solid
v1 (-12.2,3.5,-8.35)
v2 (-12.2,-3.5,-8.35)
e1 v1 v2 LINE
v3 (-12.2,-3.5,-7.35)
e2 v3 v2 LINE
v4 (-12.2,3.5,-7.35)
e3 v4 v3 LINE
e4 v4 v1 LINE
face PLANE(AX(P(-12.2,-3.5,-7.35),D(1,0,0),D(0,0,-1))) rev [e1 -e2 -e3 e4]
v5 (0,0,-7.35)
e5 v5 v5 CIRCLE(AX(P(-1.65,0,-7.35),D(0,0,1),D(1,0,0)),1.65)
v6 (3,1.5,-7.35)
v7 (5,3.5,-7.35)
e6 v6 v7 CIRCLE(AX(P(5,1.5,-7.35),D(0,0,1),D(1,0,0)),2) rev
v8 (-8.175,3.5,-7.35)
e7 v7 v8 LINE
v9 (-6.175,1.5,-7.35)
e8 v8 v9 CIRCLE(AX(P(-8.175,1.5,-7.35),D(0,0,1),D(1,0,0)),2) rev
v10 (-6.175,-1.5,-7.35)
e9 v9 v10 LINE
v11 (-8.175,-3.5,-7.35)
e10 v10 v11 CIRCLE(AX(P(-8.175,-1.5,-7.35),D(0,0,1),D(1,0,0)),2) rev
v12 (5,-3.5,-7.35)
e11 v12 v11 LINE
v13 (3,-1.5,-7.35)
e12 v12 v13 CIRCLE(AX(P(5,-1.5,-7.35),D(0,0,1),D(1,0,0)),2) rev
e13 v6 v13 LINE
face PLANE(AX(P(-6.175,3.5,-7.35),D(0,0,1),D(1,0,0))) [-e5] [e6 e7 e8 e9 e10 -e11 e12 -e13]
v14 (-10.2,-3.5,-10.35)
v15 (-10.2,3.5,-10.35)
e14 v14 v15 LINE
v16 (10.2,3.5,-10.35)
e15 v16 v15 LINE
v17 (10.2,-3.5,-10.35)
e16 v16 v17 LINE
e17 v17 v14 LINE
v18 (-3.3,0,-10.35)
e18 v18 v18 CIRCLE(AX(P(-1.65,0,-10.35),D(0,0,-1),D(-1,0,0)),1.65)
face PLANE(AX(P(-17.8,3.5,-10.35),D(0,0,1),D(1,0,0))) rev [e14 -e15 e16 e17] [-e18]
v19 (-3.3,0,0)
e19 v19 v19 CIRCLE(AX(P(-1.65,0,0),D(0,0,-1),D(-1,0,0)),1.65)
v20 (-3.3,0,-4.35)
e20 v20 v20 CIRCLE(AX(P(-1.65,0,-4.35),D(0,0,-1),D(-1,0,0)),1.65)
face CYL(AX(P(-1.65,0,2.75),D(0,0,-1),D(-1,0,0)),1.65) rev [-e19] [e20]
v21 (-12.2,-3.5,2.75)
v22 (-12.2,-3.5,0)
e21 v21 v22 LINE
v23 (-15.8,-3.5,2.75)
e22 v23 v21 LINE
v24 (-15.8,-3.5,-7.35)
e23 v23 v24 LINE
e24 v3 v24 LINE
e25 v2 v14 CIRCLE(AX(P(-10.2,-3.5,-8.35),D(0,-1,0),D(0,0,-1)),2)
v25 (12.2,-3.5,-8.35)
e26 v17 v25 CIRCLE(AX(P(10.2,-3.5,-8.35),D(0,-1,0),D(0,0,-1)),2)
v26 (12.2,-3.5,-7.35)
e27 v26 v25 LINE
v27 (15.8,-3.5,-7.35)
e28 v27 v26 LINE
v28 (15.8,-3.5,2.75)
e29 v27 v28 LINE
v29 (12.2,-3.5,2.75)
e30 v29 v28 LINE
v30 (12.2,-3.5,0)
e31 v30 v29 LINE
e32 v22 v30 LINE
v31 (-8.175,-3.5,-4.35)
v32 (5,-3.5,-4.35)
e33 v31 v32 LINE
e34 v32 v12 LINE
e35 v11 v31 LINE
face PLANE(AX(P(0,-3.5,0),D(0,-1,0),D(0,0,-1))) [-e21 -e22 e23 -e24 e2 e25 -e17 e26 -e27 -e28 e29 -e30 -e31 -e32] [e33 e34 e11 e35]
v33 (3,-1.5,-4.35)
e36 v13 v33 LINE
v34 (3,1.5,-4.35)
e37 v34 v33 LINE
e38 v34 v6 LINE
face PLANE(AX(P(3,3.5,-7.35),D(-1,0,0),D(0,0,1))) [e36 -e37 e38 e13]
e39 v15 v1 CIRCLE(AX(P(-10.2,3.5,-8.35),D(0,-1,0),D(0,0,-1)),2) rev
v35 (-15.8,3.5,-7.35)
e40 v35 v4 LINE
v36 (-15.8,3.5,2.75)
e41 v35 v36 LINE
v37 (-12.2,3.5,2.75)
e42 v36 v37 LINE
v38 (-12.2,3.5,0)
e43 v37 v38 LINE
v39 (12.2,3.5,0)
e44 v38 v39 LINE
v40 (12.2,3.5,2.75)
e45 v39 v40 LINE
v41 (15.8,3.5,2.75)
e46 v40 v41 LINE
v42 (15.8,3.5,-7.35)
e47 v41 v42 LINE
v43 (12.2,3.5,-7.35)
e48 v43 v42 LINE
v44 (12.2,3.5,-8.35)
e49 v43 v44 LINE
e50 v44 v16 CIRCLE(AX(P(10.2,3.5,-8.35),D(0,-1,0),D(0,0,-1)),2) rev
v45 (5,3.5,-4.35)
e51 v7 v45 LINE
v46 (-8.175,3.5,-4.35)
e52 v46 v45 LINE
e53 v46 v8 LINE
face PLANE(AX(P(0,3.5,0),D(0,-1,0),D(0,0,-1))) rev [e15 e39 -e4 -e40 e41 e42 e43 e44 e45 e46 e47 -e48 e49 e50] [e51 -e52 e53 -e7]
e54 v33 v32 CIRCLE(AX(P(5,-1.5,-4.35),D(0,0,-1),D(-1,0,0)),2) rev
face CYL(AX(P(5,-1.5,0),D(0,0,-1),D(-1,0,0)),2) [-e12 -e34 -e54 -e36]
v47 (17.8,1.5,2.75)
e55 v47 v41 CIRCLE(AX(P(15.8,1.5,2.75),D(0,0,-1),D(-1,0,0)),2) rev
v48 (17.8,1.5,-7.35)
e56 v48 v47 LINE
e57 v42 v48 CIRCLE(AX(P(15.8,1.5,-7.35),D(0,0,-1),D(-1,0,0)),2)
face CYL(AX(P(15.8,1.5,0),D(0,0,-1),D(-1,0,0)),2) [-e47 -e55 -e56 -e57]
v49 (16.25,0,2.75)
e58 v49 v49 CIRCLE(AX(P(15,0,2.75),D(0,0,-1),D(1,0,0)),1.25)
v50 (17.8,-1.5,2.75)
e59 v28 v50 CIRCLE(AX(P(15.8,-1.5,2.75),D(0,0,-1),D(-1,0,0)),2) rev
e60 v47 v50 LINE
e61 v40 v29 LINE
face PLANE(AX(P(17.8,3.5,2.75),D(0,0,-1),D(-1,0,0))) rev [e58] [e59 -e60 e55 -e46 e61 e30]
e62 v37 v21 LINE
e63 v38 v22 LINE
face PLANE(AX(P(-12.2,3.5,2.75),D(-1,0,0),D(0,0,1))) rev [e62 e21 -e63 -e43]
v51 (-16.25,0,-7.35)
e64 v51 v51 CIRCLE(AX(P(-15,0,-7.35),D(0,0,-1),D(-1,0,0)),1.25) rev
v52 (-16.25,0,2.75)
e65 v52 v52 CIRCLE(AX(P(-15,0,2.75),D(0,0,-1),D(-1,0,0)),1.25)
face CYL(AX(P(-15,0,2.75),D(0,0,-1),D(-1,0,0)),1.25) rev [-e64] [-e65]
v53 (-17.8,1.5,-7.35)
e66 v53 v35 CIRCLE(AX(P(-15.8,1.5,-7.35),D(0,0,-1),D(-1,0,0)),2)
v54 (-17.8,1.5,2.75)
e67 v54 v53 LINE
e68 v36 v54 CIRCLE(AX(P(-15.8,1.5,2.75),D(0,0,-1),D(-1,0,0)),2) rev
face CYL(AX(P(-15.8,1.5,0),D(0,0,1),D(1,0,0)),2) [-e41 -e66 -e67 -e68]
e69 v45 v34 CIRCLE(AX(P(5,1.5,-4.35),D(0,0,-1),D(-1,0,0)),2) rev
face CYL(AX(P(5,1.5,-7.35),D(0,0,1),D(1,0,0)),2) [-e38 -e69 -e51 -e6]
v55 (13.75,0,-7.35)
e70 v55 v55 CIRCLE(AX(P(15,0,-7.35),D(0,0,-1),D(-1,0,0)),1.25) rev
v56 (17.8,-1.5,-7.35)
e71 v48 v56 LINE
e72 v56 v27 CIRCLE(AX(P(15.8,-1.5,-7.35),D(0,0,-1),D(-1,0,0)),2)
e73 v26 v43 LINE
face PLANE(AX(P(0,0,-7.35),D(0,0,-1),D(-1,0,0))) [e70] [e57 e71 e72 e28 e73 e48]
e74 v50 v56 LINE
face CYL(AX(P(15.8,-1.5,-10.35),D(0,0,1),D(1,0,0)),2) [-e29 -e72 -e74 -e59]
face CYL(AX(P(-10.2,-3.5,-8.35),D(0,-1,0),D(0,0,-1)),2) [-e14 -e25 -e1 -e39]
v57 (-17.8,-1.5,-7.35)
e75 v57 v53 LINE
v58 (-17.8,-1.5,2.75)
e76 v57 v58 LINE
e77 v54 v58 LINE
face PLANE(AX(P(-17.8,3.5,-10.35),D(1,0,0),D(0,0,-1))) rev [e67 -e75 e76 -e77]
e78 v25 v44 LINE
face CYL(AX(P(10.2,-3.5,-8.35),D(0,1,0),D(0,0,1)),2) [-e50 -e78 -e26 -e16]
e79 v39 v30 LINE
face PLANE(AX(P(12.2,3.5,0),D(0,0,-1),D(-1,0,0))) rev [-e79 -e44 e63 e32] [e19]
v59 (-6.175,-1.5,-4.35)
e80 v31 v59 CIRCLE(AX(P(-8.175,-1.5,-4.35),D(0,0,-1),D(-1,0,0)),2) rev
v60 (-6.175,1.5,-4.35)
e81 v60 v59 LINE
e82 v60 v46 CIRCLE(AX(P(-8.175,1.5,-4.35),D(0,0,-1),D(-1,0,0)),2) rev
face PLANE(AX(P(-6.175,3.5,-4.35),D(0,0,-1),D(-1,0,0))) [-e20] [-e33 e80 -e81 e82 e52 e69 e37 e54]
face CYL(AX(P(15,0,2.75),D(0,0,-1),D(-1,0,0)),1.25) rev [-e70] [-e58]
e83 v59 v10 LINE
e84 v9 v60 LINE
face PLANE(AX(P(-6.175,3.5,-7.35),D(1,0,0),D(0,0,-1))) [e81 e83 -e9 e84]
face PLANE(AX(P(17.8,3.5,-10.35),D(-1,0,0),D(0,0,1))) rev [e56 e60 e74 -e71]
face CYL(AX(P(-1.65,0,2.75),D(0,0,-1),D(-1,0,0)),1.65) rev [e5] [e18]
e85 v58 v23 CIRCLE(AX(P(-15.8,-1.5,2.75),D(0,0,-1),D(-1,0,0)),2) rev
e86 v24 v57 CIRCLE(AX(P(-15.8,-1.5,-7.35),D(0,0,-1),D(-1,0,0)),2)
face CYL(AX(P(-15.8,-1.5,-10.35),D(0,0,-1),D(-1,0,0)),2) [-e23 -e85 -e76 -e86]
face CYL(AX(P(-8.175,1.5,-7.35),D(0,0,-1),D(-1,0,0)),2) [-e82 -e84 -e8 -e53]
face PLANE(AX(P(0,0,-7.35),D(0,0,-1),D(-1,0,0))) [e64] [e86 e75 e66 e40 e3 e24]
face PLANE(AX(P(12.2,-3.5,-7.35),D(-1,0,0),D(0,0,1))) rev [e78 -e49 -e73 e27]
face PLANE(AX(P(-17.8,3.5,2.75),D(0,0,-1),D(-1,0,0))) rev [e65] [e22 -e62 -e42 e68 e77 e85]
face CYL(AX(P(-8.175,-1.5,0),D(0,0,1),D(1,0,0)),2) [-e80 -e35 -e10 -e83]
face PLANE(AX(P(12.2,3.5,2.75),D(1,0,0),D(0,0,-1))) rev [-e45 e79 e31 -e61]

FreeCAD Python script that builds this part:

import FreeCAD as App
import Part
import Sketcher

V = App.Vector
Q = App.Units.Quantity


def edges_at(feature, points):
    """Names of the edges that pass closest to the given points."""
    edges = feature.Shape.Edges
    near = lambda p: min(range(len(edges)), key=lambda i: edges[i].distToShape(Part.Vertex(*p))[0])
    return sorted({f"Edge{near(p) + 1}" for p in points})


def add_polygon(sketch, points):
    """Adds a closed chain of lines whose ends are joined by coincident constraints."""
    first, n = sketch.GeometryCount, len(points)
    for a, b in zip(points, points[1:] + points[:1]):
        sketch.addGeometry(Part.LineSegment(App.Vector(*a, 0), App.Vector(*b, 0)), False)
    for i in range(n):
        sketch.addConstraint(Sketcher.Constraint("Coincident", first + i, 2, first + (i + 1) % n, 1))

doc = App.newDocument("Part")
body = doc.addObject("PartDesign::Body", "Body")

# Sketch on XZ plane
sketch1 = body.newObject("Sketcher::SketchObject", "Sketch")
sketch1.AttachmentSupport = (doc.getObject("XZ_Plane"), [""])
sketch1.MapMode = "FlatFace"
add_polygon(sketch1, [(17.8, -10.35), (-17.8, -10.35), (-17.8, 2.75), (-12.2, 2.75), (-12.2, 0), (12.2, 0), (12.2, 2.75), (17.8, 2.75)])  # lines 0-7
add_polygon(sketch1, [(-6.175, -4.35), (-6.175, -7.35), (3, -7.35), (3, -4.35)])  # lines 8-11
sketch1.addConstraint([
    Sketcher.Constraint("Horizontal", 0),
    Sketcher.Constraint("Vertical", 1),
    Sketcher.Constraint("Horizontal", 2),
    Sketcher.Constraint("Vertical", 3),
    Sketcher.Constraint("Horizontal", 4),
    Sketcher.Constraint("Vertical", 5),
    Sketcher.Constraint("Horizontal", 6),
    Sketcher.Constraint("Vertical", 7),
    Sketcher.Constraint("Vertical", 8),
    Sketcher.Constraint("Horizontal", 9),
    Sketcher.Constraint("Vertical", 10),
    Sketcher.Constraint("Horizontal", 11),
    Sketcher.Constraint("Symmetric", 3, 2, 4, 2, -1, 1),
    Sketcher.Constraint("Symmetric", 1, 2, 6, 2, -2),
    Sketcher.Constraint("DistanceY", 8, 2, 8, 1, Q("3 mm")),
    Sketcher.Constraint("DistanceX", 0, 2, 0, 1, Q("35.6 mm")),
    Sketcher.Constraint("DistanceX", 2, 1, 2, 2, Q("5.6 mm")),
    Sketcher.Constraint("DistanceY", 1, 1, 1, 2, Q("13.1 mm")),
    Sketcher.Constraint("DistanceX", -1, 1, 9, 2, Q("3 mm")),
    Sketcher.Constraint("DistanceY", 0, 2, 8, 2, Q("3 mm")),
    Sketcher.Constraint("DistanceY", 3, 2, 3, 1, Q("2.75 mm")),
    Sketcher.Constraint("DistanceX", 9, 1, 9, 2, Q("9.175 mm")),
])
pad1 = body.newObject("PartDesign::Pad", "Pad")
pad1.Profile = sketch1
pad1.Length = 7
pad1.Midplane = True

# Sketch on XY plane
sketch2 = body.newObject("Sketcher::SketchObject", "Sketch001")
sketch2.AttachmentSupport = (doc.getObject("XY_Plane"), [""])
sketch2.MapMode = "FlatFace"
sketch2.AttachmentOffset = App.Placement(V(0, 0, -10.35), App.Rotation())
sketch2.addGeometry([
    Part.Circle(V(-15, 0, 0), V(0, 0, 1), 1.25),
    Part.Circle(V(-1.65, 0, 0), V(0, 0, 1), 1.65),
    Part.Circle(V(15, 0, 0), V(0, 0, 1), 1.25),
], False)
sketch2.addConstraint([
    Sketcher.Constraint("Equal", 0, 2),
    Sketcher.Constraint("Symmetric", 0, 3, 2, 3, -1, 1),
    Sketcher.Constraint("PointOnObject", 0, 3, -1),
    Sketcher.Constraint("PointOnObject", 1, 3, -1),
    Sketcher.Constraint("Diameter", 0, Q("2.5 mm")),
    Sketcher.Constraint("Diameter", 1, Q("3.3 mm")),
    Sketcher.Constraint("DistanceX", 0, 3, -1, 1, Q("15 mm")),
    Sketcher.Constraint("DistanceX", 1, 3, -1, 1, Q("1.65 mm")),
])
pocket1 = body.newObject("PartDesign::Pocket", "Pocket")
pocket1.Profile = sketch2
pocket1.Type = "ThroughAll"
pocket1.Reversed = True

# Sketch on XY plane
sketch3 = body.newObject("Sketcher::SketchObject", "Sketch002")
sketch3.AttachmentSupport = (doc.getObject("XY_Plane"), [""])
sketch3.MapMode = "FlatFace"
sketch3.AttachmentOffset = App.Placement(V(0, 0, -10.35), App.Rotation())
add_polygon(sketch3, [(-12.2, 3.5), (-12.2, -3.5), (-17.8, -3.5), (-17.8, 3.5)])  # lines 0-3
add_polygon(sketch3, [(17.8, 3.5), (17.8, -3.5), (12.2, -3.5), (12.2, 3.5)])  # lines 4-7
sketch3.addConstraint([
    Sketcher.Constraint("Vertical", 0),
    Sketcher.Constraint("Horizontal", 1),
    Sketcher.Constraint("Vertical", 2),
    Sketcher.Constraint("Horizontal", 3),
    Sketcher.Constraint("Vertical", 4),
    Sketcher.Constraint("Horizontal", 5),
    Sketcher.Constraint("Vertical", 6),
    Sketcher.Constraint("Horizontal", 7),
    Sketcher.Constraint("Symmetric", 2, 2, 4, 2, -1, 1),
    Sketcher.Constraint("Symmetric", 0, 2, 6, 2, -1, 1),
    Sketcher.Constraint("Horizontal", 1, 2, 4, 2),
    Sketcher.Constraint("DistanceY", 0, 2, 0, 1, Q("7 mm")),
    Sketcher.Constraint("DistanceX", 1, 2, 1, 1, Q("5.6 mm")),
    Sketcher.Constraint("DistanceX", 0, 2, 4, 2, Q("30 mm")),
])
pocket2 = body.newObject("PartDesign::Pocket", "Pocket001")
pocket2.Profile = sketch3
pocket2.Length = 3
pocket2.Reversed = True
doc.recompute()

fillet = body.newObject("PartDesign::Fillet", "Fillet")
fillet.Base = (pocket2, edges_at(pocket2, [
    (17.8, -3.5, -2.3),
    (-6.175, -3.5, -5.85),
    (3, -3.5, -5.85),
    (-6.175, 3.5, -5.85),
    (3, 3.5, -5.85),
    (-17.8, -3.5, -2.3),
    (-17.8, 3.5, -2.3),
    (-12.2, 0, -10.35),
    (17.8, 3.5, -2.3),
    (12.2, 0, -10.35),
]))
fillet.Radius = 2

doc.recompute()
